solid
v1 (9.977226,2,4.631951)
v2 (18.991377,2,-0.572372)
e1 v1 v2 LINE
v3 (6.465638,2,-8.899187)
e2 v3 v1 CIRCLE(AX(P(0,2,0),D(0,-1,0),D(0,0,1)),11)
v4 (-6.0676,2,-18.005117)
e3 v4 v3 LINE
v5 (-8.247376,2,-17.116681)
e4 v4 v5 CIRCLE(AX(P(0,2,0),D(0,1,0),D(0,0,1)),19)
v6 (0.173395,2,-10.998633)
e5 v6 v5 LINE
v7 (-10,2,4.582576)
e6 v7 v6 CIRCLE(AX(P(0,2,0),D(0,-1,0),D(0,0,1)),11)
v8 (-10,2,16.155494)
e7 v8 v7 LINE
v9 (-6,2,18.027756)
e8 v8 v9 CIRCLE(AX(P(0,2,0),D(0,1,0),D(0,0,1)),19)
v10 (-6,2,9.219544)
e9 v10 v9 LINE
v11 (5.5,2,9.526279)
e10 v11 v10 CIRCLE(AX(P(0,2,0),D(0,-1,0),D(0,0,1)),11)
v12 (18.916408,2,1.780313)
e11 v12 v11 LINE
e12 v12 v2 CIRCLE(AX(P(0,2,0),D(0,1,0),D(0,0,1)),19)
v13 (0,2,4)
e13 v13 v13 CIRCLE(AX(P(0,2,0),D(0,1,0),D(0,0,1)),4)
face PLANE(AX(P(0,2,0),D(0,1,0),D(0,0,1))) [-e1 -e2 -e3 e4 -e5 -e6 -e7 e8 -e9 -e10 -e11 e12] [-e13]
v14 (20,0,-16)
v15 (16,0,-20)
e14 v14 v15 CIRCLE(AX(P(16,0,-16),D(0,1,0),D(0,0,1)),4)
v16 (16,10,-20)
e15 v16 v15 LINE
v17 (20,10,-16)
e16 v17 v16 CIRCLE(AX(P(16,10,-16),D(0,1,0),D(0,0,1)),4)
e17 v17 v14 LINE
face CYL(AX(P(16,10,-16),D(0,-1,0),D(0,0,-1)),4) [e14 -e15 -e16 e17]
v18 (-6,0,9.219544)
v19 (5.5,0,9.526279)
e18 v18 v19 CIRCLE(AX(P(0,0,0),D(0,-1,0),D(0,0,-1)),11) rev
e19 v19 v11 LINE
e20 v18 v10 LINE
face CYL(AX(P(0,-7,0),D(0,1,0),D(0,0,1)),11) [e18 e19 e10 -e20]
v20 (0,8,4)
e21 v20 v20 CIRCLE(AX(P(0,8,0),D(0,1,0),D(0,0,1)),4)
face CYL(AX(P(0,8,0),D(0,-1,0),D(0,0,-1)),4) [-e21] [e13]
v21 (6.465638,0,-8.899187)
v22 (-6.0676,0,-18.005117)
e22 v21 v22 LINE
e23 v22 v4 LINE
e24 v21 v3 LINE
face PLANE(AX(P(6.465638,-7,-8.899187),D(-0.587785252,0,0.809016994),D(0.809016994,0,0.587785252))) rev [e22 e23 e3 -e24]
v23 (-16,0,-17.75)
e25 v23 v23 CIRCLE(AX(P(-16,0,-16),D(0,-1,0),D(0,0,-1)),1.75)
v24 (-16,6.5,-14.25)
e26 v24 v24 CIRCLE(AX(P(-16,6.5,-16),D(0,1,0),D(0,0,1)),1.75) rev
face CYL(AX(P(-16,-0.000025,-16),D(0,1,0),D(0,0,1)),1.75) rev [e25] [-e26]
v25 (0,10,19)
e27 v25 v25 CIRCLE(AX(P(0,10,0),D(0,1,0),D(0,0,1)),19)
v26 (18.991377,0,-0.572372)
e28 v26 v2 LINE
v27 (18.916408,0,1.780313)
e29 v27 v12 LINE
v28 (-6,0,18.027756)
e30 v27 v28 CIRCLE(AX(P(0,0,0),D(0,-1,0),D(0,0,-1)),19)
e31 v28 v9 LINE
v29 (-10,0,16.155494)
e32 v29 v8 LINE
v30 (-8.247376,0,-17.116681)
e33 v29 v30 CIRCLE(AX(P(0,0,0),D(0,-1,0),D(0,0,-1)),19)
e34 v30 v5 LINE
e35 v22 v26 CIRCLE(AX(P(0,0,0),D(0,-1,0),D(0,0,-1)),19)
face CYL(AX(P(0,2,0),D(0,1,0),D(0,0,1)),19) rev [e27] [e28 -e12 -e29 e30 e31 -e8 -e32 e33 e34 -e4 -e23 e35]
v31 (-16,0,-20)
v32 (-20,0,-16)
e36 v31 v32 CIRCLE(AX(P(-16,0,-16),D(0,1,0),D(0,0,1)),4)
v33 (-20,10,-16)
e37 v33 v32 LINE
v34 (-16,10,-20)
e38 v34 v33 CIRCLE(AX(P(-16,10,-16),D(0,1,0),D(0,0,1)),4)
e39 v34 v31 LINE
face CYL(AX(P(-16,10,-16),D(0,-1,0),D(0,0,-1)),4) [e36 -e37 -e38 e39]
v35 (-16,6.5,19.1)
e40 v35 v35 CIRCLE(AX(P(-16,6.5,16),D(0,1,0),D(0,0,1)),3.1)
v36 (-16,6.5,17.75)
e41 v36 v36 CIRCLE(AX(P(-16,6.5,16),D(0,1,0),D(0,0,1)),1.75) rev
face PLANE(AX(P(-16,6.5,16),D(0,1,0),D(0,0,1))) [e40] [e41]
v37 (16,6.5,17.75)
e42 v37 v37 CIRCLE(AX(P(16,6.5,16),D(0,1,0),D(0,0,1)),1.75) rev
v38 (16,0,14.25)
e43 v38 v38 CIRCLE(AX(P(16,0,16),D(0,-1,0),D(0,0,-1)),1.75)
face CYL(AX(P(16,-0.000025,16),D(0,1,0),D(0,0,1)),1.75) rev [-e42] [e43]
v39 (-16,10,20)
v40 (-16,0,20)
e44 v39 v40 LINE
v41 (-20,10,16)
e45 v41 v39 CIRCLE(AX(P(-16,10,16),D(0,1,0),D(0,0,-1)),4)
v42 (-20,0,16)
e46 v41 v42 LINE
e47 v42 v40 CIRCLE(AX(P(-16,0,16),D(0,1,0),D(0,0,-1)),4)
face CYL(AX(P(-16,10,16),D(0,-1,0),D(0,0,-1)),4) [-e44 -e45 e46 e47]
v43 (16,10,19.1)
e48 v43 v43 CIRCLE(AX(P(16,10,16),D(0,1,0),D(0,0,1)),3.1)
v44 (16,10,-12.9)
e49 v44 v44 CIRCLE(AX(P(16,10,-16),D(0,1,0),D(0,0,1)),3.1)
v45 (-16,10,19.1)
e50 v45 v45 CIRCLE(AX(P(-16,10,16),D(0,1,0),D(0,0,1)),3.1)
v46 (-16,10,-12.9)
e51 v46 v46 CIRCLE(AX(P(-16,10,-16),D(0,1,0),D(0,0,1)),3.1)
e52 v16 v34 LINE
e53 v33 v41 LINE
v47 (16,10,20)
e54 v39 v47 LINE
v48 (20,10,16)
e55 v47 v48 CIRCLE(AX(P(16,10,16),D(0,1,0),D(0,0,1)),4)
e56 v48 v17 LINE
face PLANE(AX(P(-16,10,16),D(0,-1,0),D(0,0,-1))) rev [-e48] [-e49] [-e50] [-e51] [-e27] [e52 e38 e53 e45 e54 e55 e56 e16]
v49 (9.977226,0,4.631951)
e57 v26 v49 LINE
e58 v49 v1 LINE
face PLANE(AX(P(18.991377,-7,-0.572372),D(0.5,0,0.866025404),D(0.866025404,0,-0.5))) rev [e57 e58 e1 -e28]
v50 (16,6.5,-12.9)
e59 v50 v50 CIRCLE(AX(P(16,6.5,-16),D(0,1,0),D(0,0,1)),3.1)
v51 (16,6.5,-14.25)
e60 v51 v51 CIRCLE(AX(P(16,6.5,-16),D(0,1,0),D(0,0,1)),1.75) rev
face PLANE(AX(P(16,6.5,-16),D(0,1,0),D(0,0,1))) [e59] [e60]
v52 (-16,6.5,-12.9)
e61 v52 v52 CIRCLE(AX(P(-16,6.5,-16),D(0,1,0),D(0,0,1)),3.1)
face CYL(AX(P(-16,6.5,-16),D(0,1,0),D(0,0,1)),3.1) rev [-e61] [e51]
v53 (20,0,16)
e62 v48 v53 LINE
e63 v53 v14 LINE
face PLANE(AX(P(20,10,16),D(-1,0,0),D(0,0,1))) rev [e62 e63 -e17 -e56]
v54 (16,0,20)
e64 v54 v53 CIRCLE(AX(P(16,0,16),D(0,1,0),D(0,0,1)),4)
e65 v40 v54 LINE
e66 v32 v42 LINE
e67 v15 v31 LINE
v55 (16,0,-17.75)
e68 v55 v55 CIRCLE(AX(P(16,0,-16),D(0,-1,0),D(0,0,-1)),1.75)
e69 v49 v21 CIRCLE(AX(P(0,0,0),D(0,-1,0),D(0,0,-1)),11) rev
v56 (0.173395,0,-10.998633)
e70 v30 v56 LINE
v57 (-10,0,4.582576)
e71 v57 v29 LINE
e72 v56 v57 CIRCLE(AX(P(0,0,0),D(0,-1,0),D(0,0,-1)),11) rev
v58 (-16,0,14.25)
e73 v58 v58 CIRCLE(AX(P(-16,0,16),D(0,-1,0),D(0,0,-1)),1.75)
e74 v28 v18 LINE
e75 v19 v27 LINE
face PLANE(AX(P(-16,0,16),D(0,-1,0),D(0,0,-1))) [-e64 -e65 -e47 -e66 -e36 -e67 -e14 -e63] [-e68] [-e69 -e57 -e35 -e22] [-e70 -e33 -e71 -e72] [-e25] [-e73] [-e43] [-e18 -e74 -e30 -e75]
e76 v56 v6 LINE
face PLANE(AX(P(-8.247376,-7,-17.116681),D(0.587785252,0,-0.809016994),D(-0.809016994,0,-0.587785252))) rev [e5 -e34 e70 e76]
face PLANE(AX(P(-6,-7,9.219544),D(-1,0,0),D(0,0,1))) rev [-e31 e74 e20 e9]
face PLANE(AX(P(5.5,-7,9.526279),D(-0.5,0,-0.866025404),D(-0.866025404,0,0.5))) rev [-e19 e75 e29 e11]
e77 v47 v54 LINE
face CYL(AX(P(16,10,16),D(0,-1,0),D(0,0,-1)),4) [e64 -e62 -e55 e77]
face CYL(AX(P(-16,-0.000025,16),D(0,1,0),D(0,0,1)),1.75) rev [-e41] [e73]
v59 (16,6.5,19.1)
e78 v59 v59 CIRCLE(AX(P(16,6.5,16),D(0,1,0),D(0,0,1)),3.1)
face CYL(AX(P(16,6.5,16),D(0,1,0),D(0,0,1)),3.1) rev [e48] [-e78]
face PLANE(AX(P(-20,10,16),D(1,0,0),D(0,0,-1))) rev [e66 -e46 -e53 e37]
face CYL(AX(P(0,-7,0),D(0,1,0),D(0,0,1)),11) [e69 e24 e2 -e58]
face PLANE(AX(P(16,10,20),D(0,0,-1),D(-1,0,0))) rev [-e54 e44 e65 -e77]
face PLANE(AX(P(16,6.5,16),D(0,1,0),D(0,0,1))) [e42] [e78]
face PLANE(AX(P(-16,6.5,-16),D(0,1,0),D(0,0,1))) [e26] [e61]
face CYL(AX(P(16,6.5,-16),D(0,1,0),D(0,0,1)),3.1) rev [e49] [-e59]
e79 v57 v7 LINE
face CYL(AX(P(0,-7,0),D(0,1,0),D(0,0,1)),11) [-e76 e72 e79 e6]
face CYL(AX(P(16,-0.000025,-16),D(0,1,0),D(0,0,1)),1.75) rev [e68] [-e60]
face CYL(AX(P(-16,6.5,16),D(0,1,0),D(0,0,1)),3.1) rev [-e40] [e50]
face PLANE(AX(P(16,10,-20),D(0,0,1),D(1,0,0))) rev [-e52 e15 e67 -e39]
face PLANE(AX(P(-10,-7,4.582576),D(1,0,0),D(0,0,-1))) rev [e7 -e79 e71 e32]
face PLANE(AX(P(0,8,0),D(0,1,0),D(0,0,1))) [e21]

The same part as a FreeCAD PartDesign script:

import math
import FreeCAD as App
import Part
import Sketcher
Q = App.Units.Quantity

doc = App.newDocument("Part")
body = doc.addObject("PartDesign::Body", "Body")

# Sketch on XZ plane
sketch1 = body.newObject("Sketcher::SketchObject", "Sketch")
sketch1.AttachmentSupport = (doc.getObject("XZ_Plane"), [""])
sketch1.MapMode = "FlatFace"
sketch1.addGeometry([
    Part.LineSegment(App.Vector(-16, 20, 0), App.Vector(16, 20, 0)),  # 0
    Part.ArcOfCircle(Part.Circle(App.Vector(16, 16, 0), App.Vector(0, 0, 1), 4), math.radians(0), math.radians(90)),  # 1
    Part.LineSegment(App.Vector(20, 16, 0), App.Vector(20, -16, 0)),  # 2
    Part.ArcOfCircle(Part.Circle(App.Vector(16, -16, 0), App.Vector(0, 0, 1), 4), math.radians(-90), math.radians(0)),  # 3
    Part.LineSegment(App.Vector(16, -20, 0), App.Vector(-16, -20, 0)),  # 4
    Part.ArcOfCircle(Part.Circle(App.Vector(-16, -16, 0), App.Vector(0, 0, 1), 4), math.radians(180), math.radians(270)),  # 5
    Part.LineSegment(App.Vector(-20, -16, 0), App.Vector(-20, 16, 0)),  # 6
    Part.ArcOfCircle(Part.Circle(App.Vector(-16, 16, 0), App.Vector(0, 0, 1), 4), math.radians(90), math.radians(180)),  # 7
], False)
sketch1.addConstraint([
    Sketcher.Constraint("Tangent", 0, 2, 1, 2),
    Sketcher.Constraint("Tangent", 1, 1, 2, 1),
    Sketcher.Constraint("Tangent", 2, 2, 3, 2),
    Sketcher.Constraint("Tangent", 3, 1, 4, 1),
    Sketcher.Constraint("Tangent", 4, 2, 5, 2),
    Sketcher.Constraint("Tangent", 5, 1, 6, 1),
    Sketcher.Constraint("Tangent", 6, 2, 7, 2),
    Sketcher.Constraint("Tangent", 7, 1, 0, 1),
    Sketcher.Constraint("Horizontal", 0),
    Sketcher.Constraint("Vertical", 2),
    Sketcher.Constraint("Horizontal", 4),
    Sketcher.Constraint("Vertical", 6),
    Sketcher.Constraint("Equal", 1, 3),
    Sketcher.Constraint("Equal", 3, 5),
    Sketcher.Constraint("Equal", 5, 7),
    Sketcher.Constraint("Symmetric", 1, 3, 5, 3, -1, 1),
    Sketcher.Constraint("Equal", 4, 2),
    Sketcher.Constraint("Radius", 1, Q("4 mm")),
    Sketcher.Constraint("DistanceX", 0, 1, 0, 2, Q("32 mm")),
])
pad1 = body.newObject("PartDesign::Pad", "Pad")
pad1.Profile = sketch1
pad1.Length = 10
pad1.Reversed = True

# Sketch on XZ plane
sketch2 = body.newObject("Sketcher::SketchObject", "Sketch001")
sketch2.AttachmentSupport = (doc.getObject("XZ_Plane"), [""])
sketch2.MapMode = "FlatFace"
sketch2.AttachmentOffset = App.Placement(App.Vector(0, 0, -10), App.Rotation())
sketch2.addGeometry(Part.Circle(App.Vector(0, 0, 0), App.Vector(0, 0, 1), 19), False)
sketch2.addConstraint([
    Sketcher.Constraint("Coincident", 0, 3, -1, 1),
    Sketcher.Constraint("Diameter", 0, Q("38 mm")),
])
pocket1 = body.newObject("PartDesign::Pocket", "Pocket")
pocket1.Profile = sketch2
pocket1.Length = 8
pocket1.Reversed = True

# Sketch on XZ plane
sketch3 = body.newObject("Sketcher::SketchObject", "Sketch002")
sketch3.AttachmentSupport = (doc.getObject("XZ_Plane"), [""])
sketch3.MapMode = "FlatFace"
sketch3.AttachmentOffset = App.Placement(App.Vector(0, 0, -2), App.Rotation())
sketch3.addGeometry([
    Part.LineSegment(App.Vector(-10, 16, 0), App.Vector(-10, 5, 0)),  # 0
    Part.ArcOfCircle(Part.Circle(App.Vector(0, 0, 0), App.Vector(0, 0, 1), 11), math.radians(155), math.radians(271)),  # 1
    Part.LineSegment(App.Vector(0, -11, 0), App.Vector(-8, -17, 0)),  # 2
    Part.ArcOfCircle(Part.Circle(App.Vector(0, 0, 0), App.Vector(0, 0, 1), 19), math.radians(122), math.radians(244)),  # 3
    Part.LineSegment(App.Vector(-6, 9, 0), App.Vector(-6, 18, 0)),  # 4
    Part.ArcOfCircle(Part.Circle(App.Vector(0, 0, 0), App.Vector(0, 0, 1), 19), math.radians(5), math.radians(108)),  # 5
    Part.LineSegment(App.Vector(19, 2, 0), App.Vector(6, 10, 0)),  # 6
    Part.ArcOfCircle(Part.Circle(App.Vector(0, 0, 0), App.Vector(0, 0, 1), 11), math.radians(60), math.radians(123)),  # 7
    Part.LineSegment(App.Vector(-6, -18, 0), App.Vector(6, -9, 0)),  # 8
    Part.ArcOfCircle(Part.Circle(App.Vector(0, 0, 0), App.Vector(0, 0, 1), 11), math.radians(-54), math.radians(25)),  # 9
    Part.LineSegment(App.Vector(10, 5, 0), App.Vector(19, -1, 0)),  # 10
    Part.ArcOfCircle(Part.Circle(App.Vector(0, 0, 0), App.Vector(0, 0, 1), 19), math.radians(-109), math.radians(-2)),  # 11
], False)
sketch3.addConstraint([
    Sketcher.Constraint("Coincident", 0, 2, 1, 1),
    Sketcher.Constraint("Coincident", 1, 2, 2, 1),
    Sketcher.Constraint("Coincident", 2, 2, 3, 2),
    Sketcher.Constraint("Coincident", 3, 1, 0, 1),
    Sketcher.Constraint("Coincident", 4, 2, 5, 2),
    Sketcher.Constraint("Coincident", 5, 1, 6, 1),
    Sketcher.Constraint("Tangent", 6, 2, 7, 1),
    Sketcher.Constraint("Coincident", 7, 2, 4, 1),
    Sketcher.Constraint("Tangent", 8, 2, 9, 1),
    Sketcher.Constraint("Coincident", 9, 2, 10, 1),
    Sketcher.Constraint("Coincident", 10, 2, 11, 2),
    Sketcher.Constraint("Coincident", 11, 1, 8, 1),
    Sketcher.Constraint("Vertical", 0),
    Sketcher.Constraint("Vertical", 4),
    Sketcher.Constraint("Coincident", 1, 3, -1, 1),
    Sketcher.Constraint("Coincident", 3, 3, -1, 1),
    Sketcher.Constraint("Coincident", 5, 3, -1, 1),
    Sketcher.Constraint("Coincident", 7, 3, -1, 1),
    Sketcher.Constraint("Coincident", 9, 3, -1, 1),
    Sketcher.Constraint("Coincident", 11, 3, -1, 1),
    Sketcher.Constraint("Equal", 3, 5),
    Sketcher.Constraint("Equal", 1, 7),
    Sketcher.Constraint("Equal", 7, 9),
    Sketcher.Constraint("Equal", 5, 11),
    Sketcher.Constraint("Parallel", 2, 8),
    Sketcher.Constraint("Parallel", 6, 10),
    Sketcher.Constraint("Equal", 2, 10),
    Sketcher.Constraint("Radius", 1, Q("11 mm")),
    Sketcher.Constraint("Radius", 3, Q("19 mm")),
    Sketcher.Constraint("Angle", 2, Q("-144 deg")),
    Sketcher.Constraint("Angle", 6, Q("150 deg")),
    Sketcher.Constraint("DistanceX", 0, 2, -1, 1, Q("10 mm")),
    Sketcher.Constraint("DistanceX", 4, 2, -1, 1, Q("6 mm")),
    Sketcher.Constraint("DistanceY", 2, 2, -1, 1, Q("17.116681 mm")),
])
pocket2 = body.newObject("PartDesign::Pocket", "Pocket001")
pocket2.Profile = sketch3
pocket2.Length = 9
pocket2.Reversed = True

# Sketch on XZ plane
sketch4 = body.newObject("Sketcher::SketchObject", "Sketch003")
sketch4.AttachmentSupport = (doc.getObject("XZ_Plane"), [""])
sketch4.MapMode = "FlatFace"
sketch4.AttachmentOffset = App.Placement(App.Vector(0, 0, -10), App.Rotation())
sketch4.addGeometry([
    Part.Circle(App.Vector(-16, -16, 0), App.Vector(0, 0, 1), 1.8),
    Part.Circle(App.Vector(16, -16, 0), App.Vector(0, 0, 1), 1.8),
    Part.Circle(App.Vector(-16, 16, 0), App.Vector(0, 0, 1), 1.8),
    Part.Circle(App.Vector(16, 16, 0), App.Vector(0, 0, 1), 1.8),
], False)
sketch4.addConstraint([
    Sketcher.Constraint("Equal", 0, 1),
    Sketcher.Constraint("Equal", 1, 2),
    Sketcher.Constraint("Equal", 2, 3),
    Sketcher.Constraint("Symmetric", 1, 3, 2, 3, -1, 1),
    Sketcher.Constraint("Symmetric", 0, 3, 3, 3, -1, 1),
    Sketcher.Constraint("Symmetric", 0, 3, 1, 3, -2),
    Sketcher.Constraint("Diameter", 0, Q("3.5 mm")),
    Sketcher.Constraint("DistanceX", 0, 3, -1, 1, Q("16 mm")),
    Sketcher.Constraint("DistanceY", 0, 3, -1, 1, Q("16 mm")),
])
pocket3 = body.newObject("PartDesign::Pocket", "Pocket002")
pocket3.Profile = sketch4
pocket3.Type = "ThroughAll"
pocket3.Reversed = True

# Sketch on XZ plane
sketch5 = body.newObject("Sketcher::SketchObject", "Sketch004")
sketch5.AttachmentSupport = (doc.getObject("XZ_Plane"), [""])
sketch5.MapMode = "FlatFace"
sketch5.AttachmentOffset = App.Placement(App.Vector(0, 0, -10), App.Rotation())
sketch5.addGeometry([
    Part.Circle(App.Vector(-16, -16, 0), App.Vector(0, 0, 1), 3.1),
    Part.Circle(App.Vector(16, -16, 0), App.Vector(0, 0, 1), 3.1),
    Part.Circle(App.Vector(16, 16, 0), App.Vector(0, 0, 1), 3.1),
    Part.Circle(App.Vector(-16, 16, 0), App.Vector(0, 0, 1), 3.1),
], False)
sketch5.addConstraint([
    Sketcher.Constraint("Equal", 0, 1),
    Sketcher.Constraint("Equal", 1, 2),
    Sketcher.Constraint("Equal", 2, 3),
    Sketcher.Constraint("Symmetric", 0, 3, 2, 3, -1, 1),
    Sketcher.Constraint("Symmetric", 1, 3, 3, 3, -1, 1),
    Sketcher.Constraint("Symmetric", 0, 3, 1, 3, -2),
    Sketcher.Constraint("Diameter", 0, Q("6.2 mm")),
    Sketcher.Constraint("DistanceX", 0, 3, -1, 1, Q("16 mm")),
    Sketcher.Constraint("DistanceY", 0, 3, -1, 1, Q("16 mm")),
])
pocket4 = body.newObject("PartDesign::Pocket", "Pocket003")
pocket4.Profile = sketch5
pocket4.Length = 3.5
pocket4.Reversed = True

# Sketch on XZ plane
sketch6 = body.newObject("Sketcher::SketchObject", "Sketch005")
sketch6.AttachmentSupport = (doc.getObject("XZ_Plane"), [""])
sketch6.MapMode = "FlatFace"
sketch6.AttachmentOffset = App.Placement(App.Vector(0, 0, -2), App.Rotation())
sketch6.addGeometry(Part.Circle(App.Vector(0, 0, 0), App.Vector(0, 0, 1), 4), False)
sketch6.addConstraint([
    Sketcher.Constraint("Coincident", 0, 3, -1, 1),
    Sketcher.Constraint("Diameter", 0, Q("8 mm")),
])
pad2 = body.newObject("PartDesign::Pad", "Pad001")
pad2.Profile = sketch6
pad2.Length = 6
pad2.Reversed = True

doc.recompute()
